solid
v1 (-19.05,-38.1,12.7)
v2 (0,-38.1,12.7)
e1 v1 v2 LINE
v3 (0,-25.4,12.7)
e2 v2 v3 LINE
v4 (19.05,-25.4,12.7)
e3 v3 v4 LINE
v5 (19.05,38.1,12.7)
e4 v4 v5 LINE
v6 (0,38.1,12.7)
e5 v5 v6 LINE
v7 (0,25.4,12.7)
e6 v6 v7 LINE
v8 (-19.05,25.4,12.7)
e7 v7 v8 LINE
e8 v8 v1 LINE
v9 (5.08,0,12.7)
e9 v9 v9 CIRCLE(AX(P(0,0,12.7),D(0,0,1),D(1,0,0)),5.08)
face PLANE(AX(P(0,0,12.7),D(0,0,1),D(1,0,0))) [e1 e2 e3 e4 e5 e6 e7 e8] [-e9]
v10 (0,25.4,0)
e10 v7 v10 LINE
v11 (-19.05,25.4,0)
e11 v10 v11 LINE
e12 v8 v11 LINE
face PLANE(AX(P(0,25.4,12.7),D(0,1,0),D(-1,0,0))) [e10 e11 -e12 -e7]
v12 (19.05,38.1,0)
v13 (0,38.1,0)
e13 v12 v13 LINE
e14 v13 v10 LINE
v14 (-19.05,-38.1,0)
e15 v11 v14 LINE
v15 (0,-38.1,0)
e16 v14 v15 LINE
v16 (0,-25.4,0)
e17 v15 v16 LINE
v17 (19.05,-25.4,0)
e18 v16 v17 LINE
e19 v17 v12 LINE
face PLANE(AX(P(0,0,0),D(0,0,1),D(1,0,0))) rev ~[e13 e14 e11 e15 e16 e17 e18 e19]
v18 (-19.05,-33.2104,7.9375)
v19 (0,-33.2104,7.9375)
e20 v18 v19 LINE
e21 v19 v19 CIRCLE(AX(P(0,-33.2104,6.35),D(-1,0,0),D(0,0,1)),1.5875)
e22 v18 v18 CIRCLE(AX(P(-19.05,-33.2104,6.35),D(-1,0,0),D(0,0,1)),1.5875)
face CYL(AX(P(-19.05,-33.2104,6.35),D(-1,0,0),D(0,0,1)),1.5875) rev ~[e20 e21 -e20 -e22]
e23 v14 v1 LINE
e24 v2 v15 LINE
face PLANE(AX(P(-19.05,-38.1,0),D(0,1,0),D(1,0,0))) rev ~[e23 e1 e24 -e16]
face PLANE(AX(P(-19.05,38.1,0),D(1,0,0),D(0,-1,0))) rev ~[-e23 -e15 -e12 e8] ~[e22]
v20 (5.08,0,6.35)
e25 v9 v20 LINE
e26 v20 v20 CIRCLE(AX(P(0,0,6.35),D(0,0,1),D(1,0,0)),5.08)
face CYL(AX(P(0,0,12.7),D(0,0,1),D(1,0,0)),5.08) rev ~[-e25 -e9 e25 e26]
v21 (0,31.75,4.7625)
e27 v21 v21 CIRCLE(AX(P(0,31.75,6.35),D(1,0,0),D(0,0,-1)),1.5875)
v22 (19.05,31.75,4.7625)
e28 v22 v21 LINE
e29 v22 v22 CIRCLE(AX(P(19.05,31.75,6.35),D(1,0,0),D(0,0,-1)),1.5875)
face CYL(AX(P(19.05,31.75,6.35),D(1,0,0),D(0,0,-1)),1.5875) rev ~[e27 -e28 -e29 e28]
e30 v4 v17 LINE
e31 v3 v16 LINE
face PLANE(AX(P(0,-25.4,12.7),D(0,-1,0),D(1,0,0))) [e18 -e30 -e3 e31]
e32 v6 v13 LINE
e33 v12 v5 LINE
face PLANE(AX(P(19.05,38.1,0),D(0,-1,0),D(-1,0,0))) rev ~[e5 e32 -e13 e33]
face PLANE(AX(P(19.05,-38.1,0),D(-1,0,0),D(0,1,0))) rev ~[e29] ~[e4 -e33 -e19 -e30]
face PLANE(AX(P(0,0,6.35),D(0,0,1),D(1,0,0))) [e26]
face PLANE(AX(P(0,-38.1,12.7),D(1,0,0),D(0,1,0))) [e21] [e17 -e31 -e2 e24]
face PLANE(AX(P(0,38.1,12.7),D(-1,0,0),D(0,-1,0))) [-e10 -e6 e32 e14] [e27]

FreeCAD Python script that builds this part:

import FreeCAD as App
import Part
import Sketcher

V = App.Vector
Q = App.Units.Quantity


def add_polygon(sketch, points):
    """Adds a closed chain of lines whose ends are joined by coincident constraints."""
    first, n = sketch.GeometryCount, len(points)
    for a, b in zip(points, points[1:] + points[:1]):
        sketch.addGeometry(Part.LineSegment(App.Vector(*a, 0), App.Vector(*b, 0)), False)
    for i in range(n):
        sketch.addConstraint(Sketcher.Constraint("Coincident", first + i, 2, first + (i + 1) % n, 1))

doc = App.newDocument("Part")
params = doc.addObject("Spreadsheet::Sheet", "Params")
for row, (alias, value) in enumerate([
    ("sketch1_height", "3 in"),
    ("sketch1_width", "1.5 in"),
    ("pad1_length", "0.5 in"),
    ("sketch2_height", "0.5 in"),
    ("sketch2_width", "0.75 in"),
    ("pocket1_length", "0.5 in"),
    ("sketch3_height", "0.5 in"),
    ("sketch3_width", "0.75 in"),
    ("pocket2_length", "0.5 in"),
    ("sketch4_diameter", "0.4 in"),
    ("pocket3_length", "0.25 in"),
    ("sketch5_diameter", "0.125 in"),
    ("pocket4_length", "0.75 in"),
    ("sketch6_diameter", "0.125 in"),
    ("pocket5_length", "0.75 in"),
], start=1):
    params.set(f"A{row}", alias)
    params.set(f"B{row}", "=" + value)
    params.setAlias(f"B{row}", alias)

body = doc.addObject("PartDesign::Body", "Body")

sketch1 = doc.addObject("Sketcher::SketchObject", "Sketch")
body.addObject(sketch1)
sketch1.AttachmentSupport = (doc.XY_Plane, [""])
sketch1.MapMode = "FlatFace"
add_polygon(sketch1, [(-19, 38), (-19, -38), (19, -38), (19, 38)])
sketch1.addConstraint([
    Sketcher.Constraint("Vertical", 0),
    Sketcher.Constraint("Horizontal", 1),
    Sketcher.Constraint("Vertical", 2),
    Sketcher.Constraint("Horizontal", 3),
    Sketcher.Constraint("Symmetric", 0, 2, 2, 2, -1, 1),
    Sketcher.Constraint("DistanceY", 0, 2, 0, 1, Q("3 in")),
    Sketcher.Constraint("DistanceX", 1, 1, 1, 2, Q("1.5 in")),
])
sketch1.setExpression("Constraints[9]", "Params.sketch1_height")
sketch1.setExpression("Constraints[10]", "Params.sketch1_width")
pad1 = doc.addObject("PartDesign::Pad", "Pad")
body.addObject(pad1)
pad1.Profile = sketch1
pad1.setExpression("Length", "Params.pad1_length")

sketch2 = doc.addObject("Sketcher::SketchObject", "Sketch001")
body.addObject(sketch2)
sketch2.AttachmentSupport = (doc.XY_Plane, [""])
sketch2.MapMode = "FlatFace"
sketch2.AttachmentOffset = App.Placement(V(0, 0, 0.5 * 25.4), App.Rotation())
add_polygon(sketch2, [(0, 38), (-19, 38), (-19, 25), (0, 25)])
sketch2.addConstraint([
    Sketcher.Constraint("Horizontal", 0),
    Sketcher.Constraint("Vertical", 1),
    Sketcher.Constraint("Horizontal", 2),
    Sketcher.Constraint("Vertical", 3),
    Sketcher.Constraint("PointOnObject", 2, 2, -2),
    Sketcher.Constraint("DistanceY", 1, 2, 1, 1, Q("0.5 in")),
    Sketcher.Constraint("DistanceX", 0, 2, 0, 1, Q("0.75 in")),
    Sketcher.Constraint("DistanceY", -1, 1, 1, 2, Q("1 in")),
])
sketch2.setExpression("Constraints[9]", "Params.sketch2_height")
sketch2.setExpression("Constraints[10]", "Params.sketch2_width")
pocket1 = doc.addObject("PartDesign::Pocket", "Pocket")
body.addObject(pocket1)
pocket1.Profile = sketch2
pocket1.setExpression("Length", "Params.pocket1_length")

sketch3 = doc.addObject("Sketcher::SketchObject", "Sketch002")
body.addObject(sketch3)
sketch3.AttachmentSupport = (doc.XY_Plane, [""])
sketch3.MapMode = "FlatFace"
sketch3.AttachmentOffset = App.Placement(V(0, 0, 0.5 * 25.4), App.Rotation())
add_polygon(sketch3, [(0, -38), (19, -38), (19, -25), (0, -25)])
sketch3.addConstraint([
    Sketcher.Constraint("Horizontal", 0),
    Sketcher.Constraint("Vertical", 1),
    Sketcher.Constraint("Horizontal", 2),
    Sketcher.Constraint("Vertical", 3),
    Sketcher.Constraint("PointOnObject", 2, 2, -2),
    Sketcher.Constraint("DistanceY", 1, 1, 1, 2, Q("0.5 in")),
    Sketcher.Constraint("DistanceX", 0, 1, 0, 2, Q("0.75 in")),
    Sketcher.Constraint("DistanceY", 1, 2, -1, 1, Q("1 in")),
])
sketch3.setExpression("Constraints[9]", "Params.sketch3_height")
sketch3.setExpression("Constraints[10]", "Params.sketch3_width")
pocket2 = doc.addObject("PartDesign::Pocket", "Pocket001")
body.addObject(pocket2)
pocket2.Profile = sketch3
pocket2.setExpression("Length", "Params.pocket2_length")

sketch4 = doc.addObject("Sketcher::SketchObject", "Sketch003")
body.addObject(sketch4)
sketch4.AttachmentSupport = (doc.XY_Plane, [""])
sketch4.MapMode = "FlatFace"
sketch4.AttachmentOffset = App.Placement(V(0, 0, 0.5 * 25.4), App.Rotation())
sketch4.addGeometry(Part.Circle(V(0, 0, 0), V(0, 0, 1), 5), False)
sketch4.addConstraint([
    Sketcher.Constraint("Coincident", 0, 3, -1, 1),
    Sketcher.Constraint("Diameter", 0, Q("0.4 in")),
])
sketch4.setExpression("Constraints[1]", "Params.sketch4_diameter")
pocket3 = doc.addObject("PartDesign::Pocket", "Pocket002")
body.addObject(pocket3)
pocket3.Profile = sketch4
pocket3.setExpression("Length", "Params.pocket3_length")

sketch5 = doc.addObject("Sketcher::SketchObject", "Sketch004")
body.addObject(sketch5)
sketch5.AttachmentSupport = (doc.YZ_Plane, [""])
sketch5.MapMode = "FlatFace"
sketch5.AttachmentOffset = App.Placement(V(0, 0, 0.75 * 25.4), App.Rotation())
sketch5.addGeometry(Part.Circle(V(31.8, 6.3, 0), V(0, 0, 1), 1.6), False)
sketch5.addConstraint([
    Sketcher.Constraint("Diameter", 0, Q("0.125 in")),
    Sketcher.Constraint("DistanceY", -1, 1, 0, 3, Q("0.25 in")),
    Sketcher.Constraint("DistanceX", -1, 1, 0, 3, Q("1.25 in")),
])
sketch5.setExpression("Constraints[0]", "Params.sketch5_diameter")
pocket4 = doc.addObject("PartDesign::Pocket", "Pocket003")
body.addObject(pocket4)
pocket4.Profile = sketch5
pocket4.setExpression("Length", "Params.pocket4_length")

sketch6 = doc.addObject("Sketcher::SketchObject", "Sketch005")
body.addObject(sketch6)
sketch6.AttachmentSupport = (doc.YZ_Plane, [""])
sketch6.MapMode = "FlatFace"
sketch6.AttachmentOffset = App.Placement(V(0, 0, -0.75 * 25.4), App.Rotation())
sketch6.addGeometry(Part.Circle(V(-33.2, 6.3, 0), V(0, 0, 1), 1.6), False)
sketch6.addConstraint([
    Sketcher.Constraint("Diameter", 0, Q("0.125 in")),
    Sketcher.Constraint("DistanceY", -1, 1, 0, 3, Q("0.25 in")),
    Sketcher.Constraint("DistanceX", 0, 3, -1, 1, Q("1.3075 in")),
])
sketch6.setExpression("Constraints[0]", "Params.sketch6_diameter")
pocket5 = doc.addObject("PartDesign::Pocket", "Pocket004")
body.addObject(pocket5)
pocket5.Profile = sketch6
pocket5.setExpression("Length", "Params.pocket5_length")
pocket5.Reversed = True

doc.recompute()
